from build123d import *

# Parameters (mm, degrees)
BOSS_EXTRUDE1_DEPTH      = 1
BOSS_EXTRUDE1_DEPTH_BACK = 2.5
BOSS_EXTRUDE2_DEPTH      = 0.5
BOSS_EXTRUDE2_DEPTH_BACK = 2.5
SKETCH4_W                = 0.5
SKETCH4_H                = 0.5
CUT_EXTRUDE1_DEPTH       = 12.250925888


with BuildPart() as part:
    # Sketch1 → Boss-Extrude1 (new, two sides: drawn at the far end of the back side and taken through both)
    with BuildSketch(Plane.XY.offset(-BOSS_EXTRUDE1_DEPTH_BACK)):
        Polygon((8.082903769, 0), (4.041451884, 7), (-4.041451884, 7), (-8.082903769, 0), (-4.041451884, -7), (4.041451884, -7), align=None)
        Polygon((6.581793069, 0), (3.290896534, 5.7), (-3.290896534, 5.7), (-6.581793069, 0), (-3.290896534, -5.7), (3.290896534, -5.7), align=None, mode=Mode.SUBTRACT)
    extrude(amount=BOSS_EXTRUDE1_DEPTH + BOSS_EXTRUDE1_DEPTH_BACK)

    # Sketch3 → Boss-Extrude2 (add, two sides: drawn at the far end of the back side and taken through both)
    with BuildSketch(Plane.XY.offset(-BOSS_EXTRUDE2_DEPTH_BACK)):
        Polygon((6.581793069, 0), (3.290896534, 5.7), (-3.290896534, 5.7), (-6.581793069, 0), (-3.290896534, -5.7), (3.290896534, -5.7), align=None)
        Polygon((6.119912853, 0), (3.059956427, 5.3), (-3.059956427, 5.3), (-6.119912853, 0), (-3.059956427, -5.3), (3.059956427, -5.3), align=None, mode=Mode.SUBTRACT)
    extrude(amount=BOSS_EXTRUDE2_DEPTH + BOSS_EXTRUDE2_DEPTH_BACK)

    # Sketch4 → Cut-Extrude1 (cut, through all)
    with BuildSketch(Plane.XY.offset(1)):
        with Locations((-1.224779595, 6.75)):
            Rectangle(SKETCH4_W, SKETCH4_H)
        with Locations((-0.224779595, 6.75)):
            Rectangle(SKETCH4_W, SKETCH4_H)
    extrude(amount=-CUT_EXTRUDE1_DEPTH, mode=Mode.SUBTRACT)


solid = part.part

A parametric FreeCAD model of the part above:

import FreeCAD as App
import Part
import Sketcher

V = App.Vector
Q = App.Units.Quantity


def add_polygon(sketch, points):
    """Adds a closed chain of lines whose ends are joined by coincident constraints."""
    first, n = sketch.GeometryCount, len(points)
    for a, b in zip(points, points[1:] + points[:1]):
        sketch.addGeometry(Part.LineSegment(App.Vector(*a, 0), App.Vector(*b, 0)), False)
    for i in range(n):
        sketch.addConstraint(Sketcher.Constraint("Coincident", first + i, 2, first + (i + 1) % n, 1))

doc = App.newDocument("Part")
params = doc.addObject("Spreadsheet::Sheet", "Params")
for row, (alias, value) in enumerate([
    ("pad1_length", "1 mm"),
    ("pad1_length2", "2.5 mm"),
    ("pad2_length", "0.5 mm"),
    ("pad2_length2", "2.5 mm"),
    ("sketch3_width", "0.5 mm"),
], start=1):
    params.set(f"A{row}", alias)
    params.set(f"B{row}", "=" + value)
    params.setAlias(f"B{row}", alias)

body = doc.addObject("PartDesign::Body", "Body")

# Sketch on XY plane
sketch1 = body.newObject("Sketcher::SketchObject", "Sketch")
sketch1.AttachmentSupport = (doc.getObject("XY_Plane"), [""])
sketch1.MapMode = "FlatFace"
add_polygon(sketch1, [(8, 0), (4, 7), (-4, 7), (-8, 0), (-4, -7), (4, -7)])  # lines 0-5
add_polygon(sketch1, [(3, 6), (7, 0), (3, -6), (-3, -6), (-7, 0), (-3, 6)])  # lines 6-11
sketch1.addConstraint(Sketcher.Constraint("Horizontal", 1))
sketch1.addConstraint(Sketcher.Constraint("Horizontal", 4))
sketch1.addConstraint(Sketcher.Constraint("Horizontal", 8))
sketch1.addConstraint(Sketcher.Constraint("Horizontal", 11))
sketch1.addConstraint(Sketcher.Constraint("Symmetric", 0, 2, 3, 2, -1, 1))
sketch1.addConstraint(Sketcher.Constraint("Symmetric", 2, 2, 5, 2, -1, 1))
sketch1.addConstraint(Sketcher.Constraint("Symmetric", 6, 2, 9, 2, -1, 1))
sketch1.addConstraint(Sketcher.Constraint("Symmetric", 7, 2, 10, 2, -1, 1))
sketch1.addConstraint(Sketcher.Constraint("PointOnObject", 2, 2, -1))
sketch1.addConstraint(Sketcher.Constraint("PointOnObject", 6, 2, -1))
sketch1.addConstraint(Sketcher.Constraint("Parallel", 2, 5))
sketch1.addConstraint(Sketcher.Constraint("Parallel", 3, 6))
sketch1.addConstraint(Sketcher.Constraint("Parallel", 5, 7))
sketch1.addConstraint(Sketcher.Constraint("Parallel", 6, 9))
sketch1.addConstraint(Sketcher.Constraint("Vertical", 1, 2, 3, 2))
sketch1.addConstraint(Sketcher.Constraint("Angle", 0, Q("120 deg")))
sketch1.addConstraint(Sketcher.Constraint("DistanceY", -1, 1, 0, 2, 7.0))
sketch1.addConstraint(Sketcher.Constraint("DistanceY", 7, 2, -1, 1, 5.7))
sketch1.addConstraint(Sketcher.Constraint("DistanceX", 2, 2, 7, 2, 11.3738))
sketch1.addConstraint(Sketcher.Constraint("DistanceX", 1, 2, 1, 1, 8.082904))
pad1 = body.newObject("PartDesign::Pad", "Pad")
pad1.Profile = sketch1
pad1.Type = "TwoLengths"
pad1.setExpression("Length", "Params.pad1_length")
pad1.setExpression("Length2", "Params.pad1_length2")

# Sketch on XY plane
sketch2 = body.newObject("Sketcher::SketchObject", "Sketch001")
sketch2.AttachmentSupport = (doc.getObject("XY_Plane"), [""])
sketch2.MapMode = "FlatFace"
add_polygon(sketch2, [(7, 0), (3, 6), (-3, 6), (-7, 0), (-3, -6), (3, -6)])  # lines 0-5
add_polygon(sketch2, [(3, 5), (6, 0), (3, -5), (-3, -5), (-6, 0), (-3, 5)])  # lines 6-11
sketch2.addConstraint(Sketcher.Constraint("Horizontal", 1))
sketch2.addConstraint(Sketcher.Constraint("Horizontal", 4))
sketch2.addConstraint(Sketcher.Constraint("Horizontal", 8))
sketch2.addConstraint(Sketcher.Constraint("Horizontal", 11))
sketch2.addConstraint(Sketcher.Constraint("Symmetric", 0, 2, 3, 2, -1, 1))
sketch2.addConstraint(Sketcher.Constraint("Symmetric", 2, 2, 5, 2, -1, 1))
sketch2.addConstraint(Sketcher.Constraint("Symmetric", 6, 2, 9, 2, -1, 1))
sketch2.addConstraint(Sketcher.Constraint("Symmetric", 7, 2, 10, 2, -1, 1))
sketch2.addConstraint(Sketcher.Constraint("PointOnObject", 2, 2, -1))
sketch2.addConstraint(Sketcher.Constraint("PointOnObject", 6, 2, -1))
sketch2.addConstraint(Sketcher.Constraint("Parallel", 2, 5))
sketch2.addConstraint(Sketcher.Constraint("Parallel", 3, 6))
sketch2.addConstraint(Sketcher.Constraint("Parallel", 5, 7))
sketch2.addConstraint(Sketcher.Constraint("Parallel", 6, 9))
sketch2.addConstraint(Sketcher.Constraint("Vertical", 1, 2, 3, 2))
sketch2.addConstraint(Sketcher.Constraint("Angle", 0, Q("120 deg")))
sketch2.addConstraint(Sketcher.Constraint("DistanceY", 7, 2, 0, 2, 11.0))
sketch2.addConstraint(Sketcher.Constraint("DistanceY", -1, 1, 0, 2, 5.7))
sketch2.addConstraint(Sketcher.Constraint("DistanceX", 1, 2, 1, 1, 6.581793))
sketch2.addConstraint(Sketcher.Constraint("DistanceX", 8, 2, 8, 1, 6.119913))
pad2 = body.newObject("PartDesign::Pad", "Pad001")
pad2.Profile = sketch2
pad2.Type = "TwoLengths"
pad2.setExpression("Length", "Params.pad2_length")
pad2.setExpression("Length2", "Params.pad2_length2")

# Sketch on XY plane
sketch3 = body.newObject("Sketcher::SketchObject", "Sketch002")
sketch3.AttachmentSupport = (doc.getObject("XY_Plane"), [""])
sketch3.MapMode = "FlatFace"
sketch3.AttachmentOffset = App.Placement(V(0, 0, 1), App.Rotation())
add_polygon(sketch3, [(-1.5, 7), (-1.5, 6.5), (-1, 6.5), (-1, 7)])  # lines 0-3
add_polygon(sketch3, [(-0.5, 7), (-0.5, 6.5), (0, 6.5), (0, 7)])  # lines 4-7
sketch3.addConstraint(Sketcher.Constraint("Vertical", 0))
sketch3.addConstraint(Sketcher.Constraint("Horizontal", 1))
sketch3.addConstraint(Sketcher.Constraint("Vertical", 2))
sketch3.addConstraint(Sketcher.Constraint("Horizontal", 3))
sketch3.addConstraint(Sketcher.Constraint("Vertical", 4))
sketch3.addConstraint(Sketcher.Constraint("Horizontal", 5))
sketch3.addConstraint(Sketcher.Constraint("Vertical", 6))
sketch3.addConstraint(Sketcher.Constraint("Horizontal", 7))
sketch3.addConstraint(Sketcher.Constraint("Horizontal", 1, 2, 4, 2))
sketch3.addConstraint(Sketcher.Constraint("Horizontal", 3, 2, 6, 2))
sketch3.addConstraint(Sketcher.Constraint("Equal", 3, 5))
sketch3.addConstraint(Sketcher.Constraint("Equal", 7, 0))
sketch3.addConstraint(Sketcher.Constraint("DistanceX", 1, 1, 1, 2, 0.5))
sketch3.addConstraint(Sketcher.Constraint("DistanceY", -1, 1, 2, 2, 7.0))
sketch3.addConstraint(Sketcher.Constraint("DistanceX", 0, 2, 4, 2, 1.0))
sketch3.addConstraint(Sketcher.Constraint("DistanceX", 0, 2, -1, 1, 1.47478))
sketch3.setExpression("Constraints[20]", "Params.sketch3_width")
pocket1 = body.newObject("PartDesign::Pocket", "Pocket")
pocket1.Profile = sketch3
pocket1.Type = "ThroughAll"

doc.recompute()
